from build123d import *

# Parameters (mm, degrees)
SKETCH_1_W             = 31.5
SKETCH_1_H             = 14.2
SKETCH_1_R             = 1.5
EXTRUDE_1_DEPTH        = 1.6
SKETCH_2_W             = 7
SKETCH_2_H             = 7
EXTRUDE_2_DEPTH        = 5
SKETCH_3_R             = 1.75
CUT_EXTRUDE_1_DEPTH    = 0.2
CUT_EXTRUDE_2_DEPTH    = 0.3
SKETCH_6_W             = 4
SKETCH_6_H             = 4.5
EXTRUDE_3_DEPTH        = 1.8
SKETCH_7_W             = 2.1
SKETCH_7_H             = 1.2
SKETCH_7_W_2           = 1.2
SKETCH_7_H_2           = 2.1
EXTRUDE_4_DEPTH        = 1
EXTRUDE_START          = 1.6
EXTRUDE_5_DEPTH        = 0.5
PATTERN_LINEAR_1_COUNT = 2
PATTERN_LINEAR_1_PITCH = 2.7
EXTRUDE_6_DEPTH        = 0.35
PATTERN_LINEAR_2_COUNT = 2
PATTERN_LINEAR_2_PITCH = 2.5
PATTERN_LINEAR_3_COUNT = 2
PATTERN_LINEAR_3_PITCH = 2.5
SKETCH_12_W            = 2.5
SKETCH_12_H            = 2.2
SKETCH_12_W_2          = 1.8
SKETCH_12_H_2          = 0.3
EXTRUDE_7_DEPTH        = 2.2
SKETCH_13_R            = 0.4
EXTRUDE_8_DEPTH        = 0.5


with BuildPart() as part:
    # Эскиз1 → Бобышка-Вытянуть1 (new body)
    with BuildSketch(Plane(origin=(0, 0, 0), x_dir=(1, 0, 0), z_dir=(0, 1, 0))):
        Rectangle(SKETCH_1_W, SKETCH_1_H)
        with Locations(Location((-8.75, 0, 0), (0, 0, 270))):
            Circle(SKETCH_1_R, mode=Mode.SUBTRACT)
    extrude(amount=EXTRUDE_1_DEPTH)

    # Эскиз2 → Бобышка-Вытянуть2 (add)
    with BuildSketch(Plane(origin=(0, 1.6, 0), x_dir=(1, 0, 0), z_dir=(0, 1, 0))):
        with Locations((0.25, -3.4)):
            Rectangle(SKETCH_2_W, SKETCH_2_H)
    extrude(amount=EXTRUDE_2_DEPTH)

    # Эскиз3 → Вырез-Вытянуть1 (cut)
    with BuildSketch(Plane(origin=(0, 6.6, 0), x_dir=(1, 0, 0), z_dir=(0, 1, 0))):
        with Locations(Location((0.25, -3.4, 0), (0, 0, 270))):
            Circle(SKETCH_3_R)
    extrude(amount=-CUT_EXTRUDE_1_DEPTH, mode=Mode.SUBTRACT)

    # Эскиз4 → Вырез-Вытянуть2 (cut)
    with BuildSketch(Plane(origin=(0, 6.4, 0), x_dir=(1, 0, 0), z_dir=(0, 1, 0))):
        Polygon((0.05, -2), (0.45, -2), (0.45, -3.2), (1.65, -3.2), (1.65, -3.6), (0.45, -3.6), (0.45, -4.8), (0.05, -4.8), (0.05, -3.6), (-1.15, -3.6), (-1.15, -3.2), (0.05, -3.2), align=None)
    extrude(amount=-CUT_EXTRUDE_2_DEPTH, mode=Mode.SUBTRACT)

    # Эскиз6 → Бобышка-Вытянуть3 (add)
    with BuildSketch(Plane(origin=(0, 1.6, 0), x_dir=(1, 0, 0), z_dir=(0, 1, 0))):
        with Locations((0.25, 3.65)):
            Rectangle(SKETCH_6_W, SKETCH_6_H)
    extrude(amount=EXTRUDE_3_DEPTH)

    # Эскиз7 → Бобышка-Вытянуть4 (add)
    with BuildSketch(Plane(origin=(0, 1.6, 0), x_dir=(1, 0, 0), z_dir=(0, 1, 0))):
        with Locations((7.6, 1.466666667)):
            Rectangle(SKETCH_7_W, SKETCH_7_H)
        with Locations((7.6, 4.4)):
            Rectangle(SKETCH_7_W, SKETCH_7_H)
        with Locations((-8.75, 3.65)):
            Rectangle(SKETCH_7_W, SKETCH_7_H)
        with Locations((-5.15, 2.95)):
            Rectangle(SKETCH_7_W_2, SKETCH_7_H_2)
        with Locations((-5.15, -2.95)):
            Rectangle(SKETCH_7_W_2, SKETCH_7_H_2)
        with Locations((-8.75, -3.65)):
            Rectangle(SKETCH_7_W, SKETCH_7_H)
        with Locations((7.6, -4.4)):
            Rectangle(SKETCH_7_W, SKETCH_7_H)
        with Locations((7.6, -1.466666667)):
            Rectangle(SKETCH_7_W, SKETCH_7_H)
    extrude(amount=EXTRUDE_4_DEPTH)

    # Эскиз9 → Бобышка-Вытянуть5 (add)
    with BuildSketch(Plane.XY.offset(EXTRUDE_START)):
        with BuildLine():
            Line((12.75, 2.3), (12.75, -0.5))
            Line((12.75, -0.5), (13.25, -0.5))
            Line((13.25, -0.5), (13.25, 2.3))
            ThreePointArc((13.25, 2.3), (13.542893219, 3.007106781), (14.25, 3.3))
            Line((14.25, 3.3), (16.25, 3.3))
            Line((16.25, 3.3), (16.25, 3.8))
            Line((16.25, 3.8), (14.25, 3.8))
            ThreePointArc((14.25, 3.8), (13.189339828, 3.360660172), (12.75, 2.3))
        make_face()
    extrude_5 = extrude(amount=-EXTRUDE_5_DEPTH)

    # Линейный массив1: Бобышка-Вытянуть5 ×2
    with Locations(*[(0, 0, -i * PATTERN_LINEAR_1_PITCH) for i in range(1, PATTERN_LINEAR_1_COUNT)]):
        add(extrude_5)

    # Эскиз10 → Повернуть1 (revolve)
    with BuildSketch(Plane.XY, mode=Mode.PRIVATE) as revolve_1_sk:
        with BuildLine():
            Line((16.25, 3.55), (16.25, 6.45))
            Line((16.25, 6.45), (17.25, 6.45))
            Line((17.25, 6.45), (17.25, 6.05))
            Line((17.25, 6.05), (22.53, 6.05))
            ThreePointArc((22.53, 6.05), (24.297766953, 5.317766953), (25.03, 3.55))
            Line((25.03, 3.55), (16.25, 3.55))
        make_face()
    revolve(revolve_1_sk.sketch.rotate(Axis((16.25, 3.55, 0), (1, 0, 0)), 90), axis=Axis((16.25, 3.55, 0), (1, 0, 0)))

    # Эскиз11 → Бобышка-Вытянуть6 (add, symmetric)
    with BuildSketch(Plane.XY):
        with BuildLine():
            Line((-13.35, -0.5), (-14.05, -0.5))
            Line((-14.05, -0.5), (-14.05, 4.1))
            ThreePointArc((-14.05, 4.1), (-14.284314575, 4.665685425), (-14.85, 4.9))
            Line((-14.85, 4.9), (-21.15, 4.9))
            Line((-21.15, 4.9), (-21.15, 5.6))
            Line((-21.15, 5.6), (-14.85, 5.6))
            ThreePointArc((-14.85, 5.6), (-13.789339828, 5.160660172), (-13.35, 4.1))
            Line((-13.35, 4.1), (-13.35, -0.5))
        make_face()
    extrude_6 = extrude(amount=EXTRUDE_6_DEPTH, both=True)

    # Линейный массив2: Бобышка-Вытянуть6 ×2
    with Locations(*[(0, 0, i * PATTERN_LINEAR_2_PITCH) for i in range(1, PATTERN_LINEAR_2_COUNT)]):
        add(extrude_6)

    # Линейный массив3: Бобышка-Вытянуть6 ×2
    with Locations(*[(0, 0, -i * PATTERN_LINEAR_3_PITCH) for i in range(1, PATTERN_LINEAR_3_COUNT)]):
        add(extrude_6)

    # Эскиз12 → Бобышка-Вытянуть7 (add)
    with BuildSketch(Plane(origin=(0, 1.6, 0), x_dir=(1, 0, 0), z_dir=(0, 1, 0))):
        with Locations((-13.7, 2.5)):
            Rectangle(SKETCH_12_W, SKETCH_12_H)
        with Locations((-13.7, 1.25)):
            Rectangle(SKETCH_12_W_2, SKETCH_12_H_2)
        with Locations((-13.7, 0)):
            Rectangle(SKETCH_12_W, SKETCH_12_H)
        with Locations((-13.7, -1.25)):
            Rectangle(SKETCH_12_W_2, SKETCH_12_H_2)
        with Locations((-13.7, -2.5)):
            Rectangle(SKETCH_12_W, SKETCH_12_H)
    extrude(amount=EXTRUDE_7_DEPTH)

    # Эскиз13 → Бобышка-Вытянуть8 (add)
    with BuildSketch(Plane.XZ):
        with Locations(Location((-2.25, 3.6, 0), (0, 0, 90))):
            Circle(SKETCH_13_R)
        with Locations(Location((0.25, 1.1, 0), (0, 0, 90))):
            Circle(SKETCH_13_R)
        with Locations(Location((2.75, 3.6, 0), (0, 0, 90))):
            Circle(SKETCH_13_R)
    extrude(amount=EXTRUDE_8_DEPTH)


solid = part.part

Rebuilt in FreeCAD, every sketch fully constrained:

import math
import FreeCAD as App
import Part
import Sketcher
from FreeCAD import Vector


def add_polygon(sketch, points):
    """Adds a closed chain of lines whose ends are joined by coincident constraints."""
    first, n = sketch.GeometryCount, len(points)
    for a, b in zip(points, points[1:] + points[:1]):
        sketch.addGeometry(Part.LineSegment(App.Vector(*a, 0), App.Vector(*b, 0)), False)
    for i in range(n):
        sketch.addConstraint(Sketcher.Constraint("Coincident", first + i, 2, first + (i + 1) % n, 1))

doc = App.newDocument("Part")
params = doc.addObject("Spreadsheet::Sheet", "Params")
for row, (alias, value) in enumerate([
    ("sketch1_diameter", "3 mm"),
    ("sketch1_width", "31.5 mm"),
    ("sketch1_height", "14.2 mm"),
    ("pad1_length", "1.6 mm"),
    ("sketch2_width", "7 mm"),
    ("pad2_length", "5 mm"),
    ("sketch3_diameter", "3.5 mm"),
    ("pocket1_length", "0.2 mm"),
    ("sketch4_width", "0.4 mm"),
    ("sketch4_width2", "1.2 mm"),
    ("pocket2_length", "0.3 mm"),
    ("sketch5_width", "4 mm"),
    ("sketch5_height", "4.5 mm"),
    ("pad3_length", "1.8 mm"),
    ("sketch6_width", "2.1 mm"),
    ("sketch6_width2", "1.2 mm"),
    ("pad4_length", "1 mm"),
    ("sketch7_radius", "1 mm"),
    ("sketch7_radius2", "1.5 mm"),
    ("sketch7_width", "2 mm"),
    ("sketch7_height", "2.8 mm"),
    ("pad5_length", "0.5 mm"),
    ("linearpattern_pitch", "2.7 mm"),
    ("sketch8_radius", "2.5 mm"),
    ("sketch8_width", "1 mm"),
    ("sketch8_height", "2.9 mm"),
    ("sketch8_width2", "8.78 mm"),
    ("revolution_angle", "360 deg"),
    ("sketch9_radius", "1.5 mm"),
    ("sketch9_radius2", "0.8 mm"),
    ("sketch9_width", "6.3 mm"),
    ("sketch9_height", "4.6 mm"),
    ("pad6_length", "0.7 mm"),
    ("linearpattern2_pitch", "2.5 mm"),
    ("linearpattern3_pitch", "2.5 mm"),
    ("sketch10_width", "2.5 mm"),
    ("sketch10_height", "2.2 mm"),
    ("sketch10_height2", "0.3 mm"),
    ("sketch10_width2", "0.35 mm"),
    ("pad7_length", "2.2 mm"),
    ("sketch11_diameter", "0.8 mm"),
    ("pad8_length", "0.5 mm"),
], start=1):
    params.set(f"A{row}", alias)
    params.set(f"B{row}", "=" + value)
    params.setAlias(f"B{row}", alias)

body = doc.addObject("PartDesign::Body", "Body")

# Sketch on XZ plane
sketch1 = doc.addObject("Sketcher::SketchObject", "Sketch")
body.addObject(sketch1)
sketch1.AttachmentSupport = (doc.XZ_Plane, [""])
sketch1.MapMode = "FlatFace"
add_polygon(sketch1, [(-15.8, -7.1), (-15.8, 7.1), (15.8, 7.1), (15.8, -7.1)])  # lines 0-3
sketch1.addGeometry(Part.Circle(Vector(-8.8, 0, 0), Vector(0, 0, 1), 1.5), False)  # 4
sketch1.addConstraint(Sketcher.Constraint("Vertical", 0))
sketch1.addConstraint(Sketcher.Constraint("Horizontal", 1))
sketch1.addConstraint(Sketcher.Constraint("Vertical", 2))
sketch1.addConstraint(Sketcher.Constraint("Horizontal", 3))
sketch1.addConstraint(Sketcher.Constraint("Symmetric", 0, 2, 2, 2, -1, 1))
sketch1.addConstraint(Sketcher.Constraint("PointOnObject", 4, 3, -1))
sketch1.addConstraint(Sketcher.Constraint("Diameter", 4, 3.0))
sketch1.addConstraint(Sketcher.Constraint("DistanceX", 1, 1, 1, 2, 31.5))
sketch1.addConstraint(Sketcher.Constraint("DistanceY", 0, 1, 0, 2, 14.2))
sketch1.addConstraint(Sketcher.Constraint("DistanceX", 0, 2, 4, 3, 7.0))
sketch1.setExpression("Constraints[10]", "Params.sketch1_diameter")
sketch1.setExpression("Constraints[11]", "Params.sketch1_width")
sketch1.setExpression("Constraints[12]", "Params.sketch1_height")
pad1 = doc.addObject("PartDesign::Pad", "Pad")
body.addObject(pad1)
pad1.Profile = sketch1
pad1.setExpression("Length", "Params.pad1_length")
pad1.Reversed = True

# Sketch on XZ plane
sketch2 = doc.addObject("Sketcher::SketchObject", "Sketch001")
body.addObject(sketch2)
sketch2.AttachmentSupport = (doc.XZ_Plane, [""])
sketch2.MapMode = "FlatFace"
sketch2.AttachmentOffset = App.Placement(Vector(0, 0, -1.6), App.Rotation())
add_polygon(sketch2, [(-3, 0), (-3, 7), (4, 7), (4, 0)])  # lines 0-3
sketch2.addConstraint(Sketcher.Constraint("Vertical", 0))
sketch2.addConstraint(Sketcher.Constraint("Horizontal", 1))
sketch2.addConstraint(Sketcher.Constraint("Vertical", 2))
sketch2.addConstraint(Sketcher.Constraint("Horizontal", 3))
sketch2.addConstraint(Sketcher.Constraint("Equal", 3, 0))
sketch2.addConstraint(Sketcher.Constraint("DistanceX", 1, 1, 1, 2, 7.0))
sketch2.addConstraint(Sketcher.Constraint("DistanceY", -1, 1, 0, 2, 6.9))
sketch2.addConstraint(Sketcher.Constraint("DistanceX", 0, 2, -1, 1, 3.25))
sketch2.setExpression("Constraints[9]", "Params.sketch2_width")
pad2 = doc.addObject("PartDesign::Pad", "Pad001")
body.addObject(pad2)
pad2.Profile = sketch2
pad2.setExpression("Length", "Params.pad2_length")
pad2.Reversed = True

# Sketch on XZ plane
sketch3 = doc.addObject("Sketcher::SketchObject", "Sketch002")
body.addObject(sketch3)
sketch3.AttachmentSupport = (doc.XZ_Plane, [""])
sketch3.MapMode = "FlatFace"
sketch3.AttachmentOffset = App.Placement(Vector(0, 0, -6.6), App.Rotation())
sketch3.addGeometry(Part.Circle(Vector(0.2, 3.4, 0), Vector(0, 0, 1), 1.8), False)
sketch3.addConstraint(Sketcher.Constraint("Diameter", 0, 3.5))
sketch3.addConstraint(Sketcher.Constraint("DistanceY", -1, 1, 0, 3, 3.4))
sketch3.addConstraint(Sketcher.Constraint("DistanceX", -1, 1, 0, 3, 0.25))
sketch3.setExpression("Constraints[0]", "Params.sketch3_diameter")
pocket1 = doc.addObject("PartDesign::Pocket", "Pocket")
body.addObject(pocket1)
pocket1.Profile = sketch3
pocket1.setExpression("Length", "Params.pocket1_length")
pocket1.Reversed = True

# Sketch on XZ plane
sketch4 = doc.addObject("Sketcher::SketchObject", "Sketch003")
body.addObject(sketch4)
sketch4.AttachmentSupport = (doc.XZ_Plane, [""])
sketch4.MapMode = "FlatFace"
sketch4.AttachmentOffset = App.Placement(Vector(0, 0, -6.4), App.Rotation())
add_polygon(sketch4, [(0.45, 2), (0.05, 2), (0.05, 3.2), (-1.15, 3.2), (-1.15, 3.6), (0.05, 3.6), (0.05, 4.8), (0.45, 4.8), (0.45, 3.6), (1.65, 3.6), (1.65, 3.2), (0.45, 3.2)])  # lines 0-11
sketch4.addConstraint(Sketcher.Constraint("Horizontal", 0))
sketch4.addConstraint(Sketcher.Constraint("Vertical", 1))
sketch4.addConstraint(Sketcher.Constraint("Horizontal", 2))
sketch4.addConstraint(Sketcher.Constraint("Vertical", 3))
sketch4.addConstraint(Sketcher.Constraint("Horizontal", 4))
sketch4.addConstraint(Sketcher.Constraint("Vertical", 5))
sketch4.addConstraint(Sketcher.Constraint("Horizontal", 6))
sketch4.addConstraint(Sketcher.Constraint("Vertical", 7))
sketch4.addConstraint(Sketcher.Constraint("Horizontal", 8))
sketch4.addConstraint(Sketcher.Constraint("Vertical", 9))
sketch4.addConstraint(Sketcher.Constraint("Horizontal", 10))
sketch4.addConstraint(Sketcher.Constraint("Vertical", 11))
sketch4.addConstraint(Sketcher.Constraint("Horizontal", 4, 2, 7, 2))
sketch4.addConstraint(Sketcher.Constraint("Horizontal", 2, 2, 9, 2))
sketch4.addConstraint(Sketcher.Constraint("Vertical", 1, 2, 4, 2))
sketch4.addConstraint(Sketcher.Constraint("Vertical", 7, 2, 10, 2))
sketch4.addConstraint(Sketcher.Constraint("Equal", 4, 8))
sketch4.addConstraint(Sketcher.Constraint("Equal", 10, 1))
sketch4.addConstraint(Sketcher.Constraint("Equal", 6, 3))
sketch4.addConstraint(Sketcher.Constraint("Equal", 1, 5))
sketch4.addConstraint(Sketcher.Constraint("DistanceX", 0, 2, 0, 1, 0.4))
sketch4.addConstraint(Sketcher.Constraint("DistanceX", 2, 2, 2, 1, 1.2))
sketch4.addConstraint(Sketcher.Constraint("DistanceY", -1, 1, 0, 2, 2.0))
sketch4.addConstraint(Sketcher.Constraint("DistanceX", -1, 1, 0, 2, 0.05))
sketch4.setExpression("Constraints[32]", "Params.sketch4_width")
sketch4.setExpression("Constraints[33]", "Params.sketch4_width2")
pocket2 = doc.addObject("PartDesign::Pocket", "Pocket001")
body.addObject(pocket2)
pocket2.Profile = sketch4
pocket2.setExpression("Length", "Params.pocket2_length")
pocket2.Reversed = True

# Sketch on XZ plane
sketch5 = doc.addObject("Sketcher::SketchObject", "Sketch004")
body.addObject(sketch5)
sketch5.AttachmentSupport = (doc.XZ_Plane, [""])
sketch5.MapMode = "FlatFace"
sketch5.AttachmentOffset = App.Placement(Vector(0, 0, -1.6), App.Rotation())
add_polygon(sketch5, [(-1.8, -5.9), (-1.8, -1.4), (2.2, -1.4), (2.2, -5.9)])  # lines 0-3
sketch5.addConstraint(Sketcher.Constraint("Vertical", 0))
sketch5.addConstraint(Sketcher.Constraint("Horizontal", 1))
sketch5.addConstraint(Sketcher.Constraint("Vertical", 2))
sketch5.addConstraint(Sketcher.Constraint("Horizontal", 3))
sketch5.addConstraint(Sketcher.Constraint("DistanceX", 1, 1, 1, 2, 4.0))
sketch5.addConstraint(Sketcher.Constraint("DistanceY", 0, 1, 0, 2, 4.5))
sketch5.addConstraint(Sketcher.Constraint("DistanceY", 0, 2, -1, 1, 1.4))
sketch5.addConstraint(Sketcher.Constraint("DistanceX", 0, 2, -1, 1, 1.75))
sketch5.setExpression("Constraints[8]", "Params.sketch5_width")
sketch5.setExpression("Constraints[9]", "Params.sketch5_height")
pad3 = doc.addObject("PartDesign::Pad", "Pad002")
body.addObject(pad3)
pad3.Profile = sketch5
pad3.setExpression("Length", "Params.pad3_length")
pad3.Reversed = True

# Sketch on XZ plane
sketch6 = doc.addObject("Sketcher::SketchObject", "Sketch005")
body.addObject(sketch6)
sketch6.AttachmentSupport = (doc.XZ_Plane, [""])
sketch6.MapMode = "FlatFace"
sketch6.AttachmentOffset = App.Placement(Vector(0, 0, -1.6), App.Rotation())
add_polygon(sketch6, [(6.5, -2.1), (6.5, -0.9), (8.7, -0.9), (8.7, -2.1)])  # lines 0-3
add_polygon(sketch6, [(6.5, -5), (6.5, -3.8), (8.7, -3.8), (8.7, -5)])  # lines 4-7
add_polygon(sketch6, [(-9.8, -4.2), (-9.8, -3), (-7.7, -3), (-7.7, -4.2)])  # lines 8-11
add_polygon(sketch6, [(-5.8, -4), (-5.8, -1.9), (-4.5, -1.9), (-4.5, -4)])  # lines 12-15
add_polygon(sketch6, [(-5.8, 1.9), (-5.8, 4), (-4.5, 4), (-4.5, 1.9)])  # lines 16-19
add_polygon(sketch6, [(-9.8, 3), (-9.8, 4.2), (-7.7, 4.2), (-7.7, 3)])  # lines 20-23
add_polygon(sketch6, [(6.5, 3.8), (6.5, 5), (8.7, 5), (8.7, 3.8)])  # lines 24-27
add_polygon(sketch6, [(6.5, 0.9), (6.5, 2.1), (8.7, 2.1), (8.7, 0.9)])  # lines 28-31
sketch6.addConstraint(Sketcher.Constraint("Vertical", 0))
sketch6.addConstraint(Sketcher.Constraint("Horizontal", 1))
sketch6.addConstraint(Sketcher.Constraint("Vertical", 2))
sketch6.addConstraint(Sketcher.Constraint("Horizontal", 3))
sketch6.addConstraint(Sketcher.Constraint("Vertical", 4))
sketch6.addConstraint(Sketcher.Constraint("Horizontal", 5))
sketch6.addConstraint(Sketcher.Constraint("Vertical", 6))
sketch6.addConstraint(Sketcher.Constraint("Horizontal", 7))
sketch6.addConstraint(Sketcher.Constraint("Vertical", 8))
sketch6.addConstraint(Sketcher.Constraint("Horizontal", 9))
sketch6.addConstraint(Sketcher.Constraint("Vertical", 10))
sketch6.addConstraint(Sketcher.Constraint("Horizontal", 11))
sketch6.addConstraint(Sketcher.Constraint("Vertical", 12))
sketch6.addConstraint(Sketcher.Constraint("Horizontal", 13))
sketch6.addConstraint(Sketcher.Constraint("Vertical", 14))
sketch6.addConstraint(Sketcher.Constraint("Horizontal", 15))
sketch6.addConstraint(Sketcher.Constraint("Vertical", 16))
sketch6.addConstraint(Sketcher.Constraint("Horizontal", 17))
sketch6.addConstraint(Sketcher.Constraint("Vertical", 18))
sketch6.addConstraint(Sketcher.Constraint("Horizontal", 19))
sketch6.addConstraint(Sketcher.Constraint("Vertical", 20))
sketch6.addConstraint(Sketcher.Constraint("Horizontal", 21))
sketch6.addConstraint(Sketcher.Constraint("Vertical", 22))
sketch6.addConstraint(Sketcher.Constraint("Horizontal", 23))
sketch6.addConstraint(Sketcher.Constraint("Vertical", 24))
sketch6.addConstraint(Sketcher.Constraint("Horizontal", 25))
sketch6.addConstraint(Sketcher.Constraint("Vertical", 26))
sketch6.addConstraint(Sketcher.Constraint("Horizontal", 27))
sketch6.addConstraint(Sketcher.Constraint("Vertical", 28))
sketch6.addConstraint(Sketcher.Constraint("Horizontal", 29))
sketch6.addConstraint(Sketcher.Constraint("Vertical", 30))
sketch6.addConstraint(Sketcher.Constraint("Horizontal", 31))
sketch6.addConstraint(Sketcher.Constraint("Symmetric", 15, 2, 16, 2, -1))
sketch6.addConstraint(Sketcher.Constraint("Symmetric", 13, 2, 18, 2, -1))
sketch6.addConstraint(Sketcher.Constraint("Symmetric", 11, 2, 20, 2, -1))
sketch6.addConstraint(Sketcher.Constraint("Symmetric", 9, 2, 22, 2, -1))
sketch6.addConstraint(Sketcher.Constraint("Symmetric", 7, 2, 24, 2, -1))
sketch6.addConstraint(Sketcher.Constraint("Symmetric", 5, 2, 26, 2, -1))
sketch6.addConstraint(Sketcher.Constraint("Symmetric", 3, 2, 28, 2, -1))
sketch6.addConstraint(Sketcher.Constraint("Symmetric", 1, 2, 30, 2, -1))
sketch6.addConstraint(Sketcher.Constraint("Vertical", 3, 2, 4, 2))
sketch6.addConstraint(Sketcher.Constraint("Vertical", 2, 2, 5, 2))
sketch6.addConstraint(Sketcher.Constraint("Equal", 7, 9))
sketch6.addConstraint(Sketcher.Constraint("Equal", 19, 0))
sketch6.addConstraint(Sketcher.Constraint("Equal", 2, 4))
sketch6.addConstraint(Sketcher.Constraint("Equal", 6, 8))
sketch6.addConstraint(Sketcher.Constraint("Equal", 31, 12))
sketch6.addConstraint(Sketcher.Constraint("DistanceX", 1, 1, 1, 2, 2.1))
sketch6.addConstraint(Sketcher.Constraint("DistanceX", 13, 1, 13, 2, 1.2))
sketch6.addConstraint(Sketcher.Constraint("DistanceY", 6, 2, -1, 1, 5.0))
sketch6.addConstraint(Sketcher.Constraint("DistanceY", 14, 2, -1, 1, 4.0))
sketch6.addConstraint(Sketcher.Constraint("DistanceX", 8, 2, -1, 1, 9.8))
sketch6.addConstraint(Sketcher.Constraint("DistanceX", 12, 2, 3, 2, 12.3))
sketch6.addConstraint(Sketcher.Constraint("DistanceY", 8, 2, 20, 2, 7.3))
sketch6.addConstraint(Sketcher.Constraint("DistanceX", -1, 1, 0, 2, 6.55))
sketch6.addConstraint(Sketcher.Constraint("DistanceY", 0, 2, -1, 1, 0.866667))
sketch6.setExpression("Constraints[79]", "Params.sketch6_width")
sketch6.setExpression("Constraints[80]", "Params.sketch6_width2")
pad4 = doc.addObject("PartDesign::Pad", "Pad003")
body.addObject(pad4)
pad4.Profile = sketch6
pad4.setExpression("Length", "Params.pad4_length")
pad4.Reversed = True

# Sketch on XY plane
sketch7 = doc.addObject("Sketcher::SketchObject", "Sketch006")
body.addObject(sketch7)
sketch7.AttachmentSupport = (doc.XY_Plane, [""])
sketch7.MapMode = "FlatFace"
sketch7.AttachmentOffset = App.Placement(Vector(0, 0, 1.6), App.Rotation())
sketch7.addGeometry(Part.LineSegment(Vector(12.8, 2.3, 0), Vector(12.8, -0.5, 0)), False)
sketch7.addGeometry(Part.LineSegment(Vector(12.8, -0.5, 0), Vector(13.2, -0.5, 0)), False)
sketch7.addGeometry(Part.LineSegment(Vector(13.2, -0.5, 0), Vector(13.2, 2.3, 0)), False)
sketch7.addGeometry(Part.ArcOfCircle(Part.Circle(Vector(14.3, 2.3, 0), Vector(0, 0, 1), 1), math.radians(90), math.radians(180)), False)
sketch7.addGeometry(Part.LineSegment(Vector(14.2, 3.3, 0), Vector(16.2, 3.3, 0)), False)
sketch7.addGeometry(Part.LineSegment(Vector(16.2, 3.3, 0), Vector(16.2, 3.8, 0)), False)
sketch7.addGeometry(Part.LineSegment(Vector(16.2, 3.8, 0), Vector(14.2, 3.8, 0)), False)
sketch7.addGeometry(Part.ArcOfCircle(Part.Circle(Vector(14.2, 2.3, 0), Vector(0, 0, 1), 1.5), math.radians(90), math.radians(180)), False)
sketch7.addConstraint(Sketcher.Constraint("Coincident", 0, 2, 1, 1))
sketch7.addConstraint(Sketcher.Constraint("Coincident", 1, 2, 2, 1))
sketch7.addConstraint(Sketcher.Constraint("Tangent", 2, 2, 3, 2))
sketch7.addConstraint(Sketcher.Constraint("Tangent", 3, 1, 4, 1))
sketch7.addConstraint(Sketcher.Constraint("Coincident", 4, 2, 5, 1))
sketch7.addConstraint(Sketcher.Constraint("Coincident", 5, 2, 6, 1))
sketch7.addConstraint(Sketcher.Constraint("Tangent", 6, 2, 7, 1))
sketch7.addConstraint(Sketcher.Constraint("Tangent", 7, 2, 0, 1))
sketch7.addConstraint(Sketcher.Constraint("Vertical", 0))
sketch7.addConstraint(Sketcher.Constraint("Horizontal", 1))
sketch7.addConstraint(Sketcher.Constraint("Vertical", 2))
sketch7.addConstraint(Sketcher.Constraint("Horizontal", 4))
sketch7.addConstraint(Sketcher.Constraint("Vertical", 5))
sketch7.addConstraint(Sketcher.Constraint("Horizontal", 6))
sketch7.addConstraint(Sketcher.Constraint("Coincident", 7, 3, 3, 3))
sketch7.addConstraint(Sketcher.Constraint("Radius", 3, 1.0))
sketch7.addConstraint(Sketcher.Constraint("Radius", 7, 1.5))
sketch7.addConstraint(Sketcher.Constraint("DistanceX", 4, 1, 4, 2, 2.0))
sketch7.addConstraint(Sketcher.Constraint("DistanceY", 0, 2, 0, 1, 2.8))
sketch7.addConstraint(Sketcher.Constraint("DistanceY", -1, 1, 3, 3, 2.3))
sketch7.addConstraint(Sketcher.Constraint("DistanceX", -1, 1, 3, 3, 14.25))
sketch7.setExpression("Constraints[15]", "Params.sketch7_radius")
sketch7.setExpression("Constraints[16]", "Params.sketch7_radius2")
sketch7.setExpression("Constraints[17]", "Params.sketch7_width")
sketch7.setExpression("Constraints[18]", "Params.sketch7_height")
pad5 = doc.addObject("PartDesign::Pad", "Pad004")
body.addObject(pad5)
pad5.Profile = sketch7
pad5.setExpression("Length", "Params.pad5_length")
pad5.Reversed = True
doc.recompute()

linearpattern = doc.addObject("PartDesign::LinearPattern", "LinearPattern")
body.addObject(linearpattern)
linearpattern.Originals = [pad5]
linearpattern.Direction = (doc.Z_Axis, [""])
linearpattern.Mode = "offset"
linearpattern.setExpression("Offset", "Params.linearpattern_pitch")
linearpattern.Occurrences = 2
linearpattern.Reversed = True
body.Tip = linearpattern

# Sketch on XY plane
sketch8 = doc.addObject("Sketcher::SketchObject", "Sketch007")
body.addObject(sketch8)
sketch8.AttachmentSupport = (doc.XY_Plane, [""])
sketch8.MapMode = "FlatFace"
sketch8.addGeometry(Part.LineSegment(Vector(16.25, 6.45, 0), Vector(16.25, 3.55, 0)), False)
sketch8.addGeometry(Part.LineSegment(Vector(16.25, 3.55, 0), Vector(25.03, 3.55, 0)), False)
sketch8.addGeometry(Part.ArcOfCircle(Part.Circle(Vector(22.53, 3.55, 0), Vector(0, 0, 1), 2.5), math.radians(0), math.radians(90)), False)
sketch8.addGeometry(Part.LineSegment(Vector(22.53, 6.05, 0), Vector(17.25, 6.05, 0)), False)
sketch8.addGeometry(Part.LineSegment(Vector(17.25, 6.05, 0), Vector(17.25, 6.45, 0)), False)
sketch8.addGeometry(Part.LineSegment(Vector(17.25, 6.45, 0), Vector(16.25, 6.45, 0)), False)
sketch8.addGeometry(Part.LineSegment(Vector(16.25, 3.55, 0), Vector(25.03, 3.55, 0)), True)  # axis
sketch8.addConstraint(Sketcher.Constraint("Coincident", 0, 2, 1, 1))
sketch8.addConstraint(Sketcher.Constraint("Coincident", 1, 2, 2, 1))
sketch8.addConstraint(Sketcher.Constraint("Tangent", 2, 2, 3, 1))
sketch8.addConstraint(Sketcher.Constraint("Coincident", 3, 2, 4, 1))
sketch8.addConstraint(Sketcher.Constraint("Coincident", 4, 2, 5, 1))
sketch8.addConstraint(Sketcher.Constraint("Coincident", 5, 2, 0, 1))
sketch8.addConstraint(Sketcher.Constraint("Vertical", 0))
sketch8.addConstraint(Sketcher.Constraint("Horizontal", 1))
sketch8.addConstraint(Sketcher.Constraint("Horizontal", 3))
sketch8.addConstraint(Sketcher.Constraint("Vertical", 4))
sketch8.addConstraint(Sketcher.Constraint("Horizontal", 5))
sketch8.addConstraint(Sketcher.Constraint("Horizontal", 6))
sketch8.addConstraint(Sketcher.Constraint("Coincident", 6, 1, 0, 2))
sketch8.addConstraint(Sketcher.Constraint("Horizontal", 2, 3, 0, 2))
sketch8.addConstraint(Sketcher.Constraint("Equal", 1, 6))
sketch8.addConstraint(Sketcher.Constraint("Radius", 2, 2.5))
sketch8.addConstraint(Sketcher.Constraint("DistanceX", 5, 2, 5, 1, 1.0))
sketch8.addConstraint(Sketcher.Constraint("DistanceY", 0, 2, 0, 1, 2.9))
sketch8.addConstraint(Sketcher.Constraint("DistanceX", 1, 1, 1, 2, 8.78))
sketch8.addConstraint(Sketcher.Constraint("DistanceX", -1, 1, 2, 3, 22.53))
sketch8.addConstraint(Sketcher.Constraint("DistanceY", -1, 1, 2, 3, 3.55))
sketch8.setExpression("Constraints[15]", "Params.sketch8_radius")
sketch8.setExpression("Constraints[16]", "Params.sketch8_width")
sketch8.setExpression("Constraints[17]", "Params.sketch8_height")
sketch8.setExpression("Constraints[18]", "Params.sketch8_width2")
revolution = doc.addObject("PartDesign::Revolution", "Revolution")
body.addObject(revolution)
revolution.Profile = sketch8
revolution.ReferenceAxis = (sketch8, ["Axis0"])
revolution.setExpression("Angle", "Params.revolution_angle")

# Sketch on XY plane
sketch9 = doc.addObject("Sketcher::SketchObject", "Sketch008")
body.addObject(sketch9)
sketch9.AttachmentSupport = (doc.XY_Plane, [""])
sketch9.MapMode = "FlatFace"
sketch9.addGeometry(Part.LineSegment(Vector(-14.1, -0.5, 0), Vector(-13.3, -0.5, 0)), False)
sketch9.addGeometry(Part.LineSegment(Vector(-13.3, -0.5, 0), Vector(-13.3, 4.1, 0)), False)
sketch9.addGeometry(Part.ArcOfCircle(Part.Circle(Vector(-14.8, 4.1, 0), Vector(0, 0, 1), 1.5), math.radians(0), math.radians(90)), False)
sketch9.addGeometry(Part.LineSegment(Vector(-14.8, 5.6, 0), Vector(-21.1, 5.6, 0)), False)
sketch9.addGeometry(Part.LineSegment(Vector(-21.1, 5.6, 0), Vector(-21.1, 4.9, 0)), False)
sketch9.addGeometry(Part.LineSegment(Vector(-21.1, 4.9, 0), Vector(-14.8, 4.9, 0)), False)
sketch9.addGeometry(Part.ArcOfCircle(Part.Circle(Vector(-14.8, 4.1, 0), Vector(0, 0, 1), 0.8), math.radians(0), math.radians(90)), False)
sketch9.addGeometry(Part.LineSegment(Vector(-14.1, 4.1, 0), Vector(-14.1, -0.5, 0)), False)
sketch9.addConstraint(Sketcher.Constraint("Coincident", 0, 2, 1, 1))
sketch9.addConstraint(Sketcher.Constraint("Tangent", 1, 2, 2, 1))
sketch9.addConstraint(Sketcher.Constraint("Tangent", 2, 2, 3, 1))
sketch9.addConstraint(Sketcher.Constraint("Coincident", 3, 2, 4, 1))
sketch9.addConstraint(Sketcher.Constraint("Coincident", 4, 2, 5, 1))
sketch9.addConstraint(Sketcher.Constraint("Tangent", 5, 2, 6, 2))
sketch9.addConstraint(Sketcher.Constraint("Tangent", 6, 1, 7, 1))
sketch9.addConstraint(Sketcher.Constraint("Coincident", 7, 2, 0, 1))
sketch9.addConstraint(Sketcher.Constraint("Horizontal", 0))
sketch9.addConstraint(Sketcher.Constraint("Vertical", 1))
sketch9.addConstraint(Sketcher.Constraint("Horizontal", 3))
sketch9.addConstraint(Sketcher.Constraint("Vertical", 4))
sketch9.addConstraint(Sketcher.Constraint("Horizontal", 5))
sketch9.addConstraint(Sketcher.Constraint("Vertical", 7))
sketch9.addConstraint(Sketcher.Constraint("Coincident", 6, 3, 2, 3))
sketch9.addConstraint(Sketcher.Constraint("Radius", 2, 1.5))
sketch9.addConstraint(Sketcher.Constraint("Radius", 6, 0.8))
sketch9.addConstraint(Sketcher.Constraint("DistanceX", 3, 2, 3, 1, 6.3))
sketch9.addConstraint(Sketcher.Constraint("DistanceY", 1, 1, 1, 2, 4.6))
sketch9.addConstraint(Sketcher.Constraint("DistanceY", -1, 1, 2, 3, 4.1))
sketch9.addConstraint(Sketcher.Constraint("DistanceX", 2, 3, -1, 1, 14.85))
sketch9.setExpression("Constraints[15]", "Params.sketch9_radius")
sketch9.setExpression("Constraints[16]", "Params.sketch9_radius2")
sketch9.setExpression("Constraints[17]", "Params.sketch9_width")
sketch9.setExpression("Constraints[18]", "Params.sketch9_height")
pad6 = doc.addObject("PartDesign::Pad", "Pad005")
body.addObject(pad6)
pad6.Profile = sketch9
pad6.setExpression("Length", "Params.pad6_length")
pad6.Midplane = True
doc.recompute()

linearpattern2 = doc.addObject("PartDesign::LinearPattern", "LinearPattern001")
body.addObject(linearpattern2)
linearpattern2.Originals = [pad6]
linearpattern2.Direction = (doc.Z_Axis, [""])
linearpattern2.Mode = "offset"
linearpattern2.setExpression("Offset", "Params.linearpattern2_pitch")
linearpattern2.Occurrences = 2
body.Tip = linearpattern2
doc.recompute()

linearpattern3 = doc.addObject("PartDesign::LinearPattern", "LinearPattern002")
body.addObject(linearpattern3)
linearpattern3.Originals = [pad6]
linearpattern3.Direction = (doc.Z_Axis, [""])
linearpattern3.Mode = "offset"
linearpattern3.setExpression("Offset", "Params.linearpattern3_pitch")
linearpattern3.Occurrences = 2
linearpattern3.Reversed = True
body.Tip = linearpattern3

# Sketch on XZ plane
sketch10 = doc.addObject("Sketcher::SketchObject", "Sketch009")
body.addObject(sketch10)
sketch10.AttachmentSupport = (doc.XZ_Plane, [""])
sketch10.MapMode = "FlatFace"
sketch10.AttachmentOffset = App.Placement(Vector(0, 0, -1.6), App.Rotation())
add_polygon(sketch10, [(-14.95, -3.6), (-14.95, -1.4), (-14.6, -1.4), (-14.6, -1.1), (-14.95, -1.1), (-14.95, 1.1), (-14.6, 1.1), (-14.6, 1.4), (-14.95, 1.4), (-14.95, 3.6), (-12.45, 3.6), (-12.45, 1.4), (-12.8, 1.4), (-12.8, 1.1), (-12.45, 1.1), (-12.45, -1.1), (-12.8, -1.1), (-12.8, -1.4), (-12.45, -1.4), (-12.45, -3.6)])  # lines 0-19
sketch10.addConstraint(Sketcher.Constraint("Vertical", 0))
sketch10.addConstraint(Sketcher.Constraint("Horizontal", 1))
sketch10.addConstraint(Sketcher.Constraint("Vertical", 2))
sketch10.addConstraint(Sketcher.Constraint("Horizontal", 3))
sketch10.addConstraint(Sketcher.Constraint("Vertical", 4))
sketch10.addConstraint(Sketcher.Constraint("Horizontal", 5))
sketch10.addConstraint(Sketcher.Constraint("Vertical", 6))
sketch10.addConstraint(Sketcher.Constraint("Horizontal", 7))
sketch10.addConstraint(Sketcher.Constraint("Vertical", 8))
sketch10.addConstraint(Sketcher.Constraint("Horizontal", 9))
sketch10.addConstraint(Sketcher.Constraint("Vertical", 10))
sketch10.addConstraint(Sketcher.Constraint("Horizontal", 11))
sketch10.addConstraint(Sketcher.Constraint("Vertical", 12))
sketch10.addConstraint(Sketcher.Constraint("Horizontal", 13))
sketch10.addConstraint(Sketcher.Constraint("Vertical", 14))
sketch10.addConstraint(Sketcher.Constraint("Horizontal", 15))
sketch10.addConstraint(Sketcher.Constraint("Vertical", 16))
sketch10.addConstraint(Sketcher.Constraint("Horizontal", 17))
sketch10.addConstraint(Sketcher.Constraint("Vertical", 18))
sketch10.addConstraint(Sketcher.Constraint("Horizontal", 19))
sketch10.addConstraint(Sketcher.Constraint("Symmetric", 2, 2, 5, 2, -1))
sketch10.addConstraint(Sketcher.Constraint("Symmetric", 0, 2, 7, 2, -1))
sketch10.addConstraint(Sketcher.Constraint("Symmetric", 12, 2, 15, 2, -1))
sketch10.addConstraint(Sketcher.Constraint("Symmetric", 10, 2, 17, 2, -1))
sketch10.addConstraint(Sketcher.Constraint("Horizontal", 7, 2, 10, 2))
sketch10.addConstraint(Sketcher.Constraint("Horizontal", 5, 2, 12, 2))
sketch10.addConstraint(Sketcher.Constraint("Vertical", 0, 2, 3, 2))
sketch10.addConstraint(Sketcher.Constraint("Vertical", 10, 2, 13, 2))
sketch10.addConstraint(Sketcher.Constraint("Equal", 7, 11))
sketch10.addConstraint(Sketcher.Constraint("Equal", 0, 4))
sketch10.addConstraint(Sketcher.Constraint("Equal", 4, 8))
sketch10.addConstraint(Sketcher.Constraint("DistanceX", 9, 1, 9, 2, 2.5))
sketch10.addConstraint(Sketcher.Constraint("DistanceY", 0, 1, 0, 2, 2.2))
sketch10.addConstraint(Sketcher.Constraint("DistanceY", 2, 1, 2, 2, 0.3))
sketch10.addConstraint(Sketcher.Constraint("DistanceX", 1, 1, 1, 2, 0.35))
sketch10.addConstraint(Sketcher.Constraint("DistanceX", 1, 2, -1, 1, 14.6))
sketch10.setExpression("Constraints[51]", "Params.sketch10_width")
sketch10.setExpression("Constraints[52]", "Params.sketch10_height")
sketch10.setExpression("Constraints[53]", "Params.sketch10_height2")
sketch10.setExpression("Constraints[54]", "Params.sketch10_width2")
pad7 = doc.addObject("PartDesign::Pad", "Pad006")
body.addObject(pad7)
pad7.Profile = sketch10
pad7.setExpression("Length", "Params.pad7_length")
pad7.Reversed = True

# Sketch on XZ plane
sketch11 = doc.addObject("Sketcher::SketchObject", "Sketch010")
body.addObject(sketch11)
sketch11.AttachmentSupport = (doc.XZ_Plane, [""])
sketch11.MapMode = "FlatFace"
sketch11.addGeometry(Part.Circle(Vector(-2.25, 3.6, 0), Vector(0, 0, 1), 0.4), False)
sketch11.addGeometry(Part.Circle(Vector(0.25, 1.1, 0), Vector(0, 0, 1), 0.4), False)
sketch11.addGeometry(Part.Circle(Vector(2.75, 3.6, 0), Vector(0, 0, 1), 0.4), False)
sketch11.addConstraint(Sketcher.Constraint("Equal", 0, 1))
sketch11.addConstraint(Sketcher.Constraint("Equal", 1, 2))
sketch11.addConstraint(Sketcher.Constraint("Horizontal", 0, 3, 2, 3))
sketch11.addConstraint(Sketcher.Constraint("Diameter", 0, 0.8))
sketch11.addConstraint(Sketcher.Constraint("DistanceX", 0, 3, 2, 3, 5.0))
sketch11.addConstraint(Sketcher.Constraint("DistanceY", -1, 1, 0, 3, 3.6))
sketch11.addConstraint(Sketcher.Constraint("DistanceY", -1, 1, 1, 3, 1.1))
sketch11.addConstraint(Sketcher.Constraint("DistanceX", 0, 3, 1, 3, 2.5))
sketch11.addConstraint(Sketcher.Constraint("DistanceX", 0, 3, -1, 1, 2.25))
sketch11.setExpression("Constraints[3]", "Params.sketch11_diameter")
pad8 = doc.addObject("PartDesign::Pad", "Pad007")
body.addObject(pad8)
pad8.Profile = sketch11
pad8.setExpression("Length", "Params.pad8_length")

doc.recompute()
